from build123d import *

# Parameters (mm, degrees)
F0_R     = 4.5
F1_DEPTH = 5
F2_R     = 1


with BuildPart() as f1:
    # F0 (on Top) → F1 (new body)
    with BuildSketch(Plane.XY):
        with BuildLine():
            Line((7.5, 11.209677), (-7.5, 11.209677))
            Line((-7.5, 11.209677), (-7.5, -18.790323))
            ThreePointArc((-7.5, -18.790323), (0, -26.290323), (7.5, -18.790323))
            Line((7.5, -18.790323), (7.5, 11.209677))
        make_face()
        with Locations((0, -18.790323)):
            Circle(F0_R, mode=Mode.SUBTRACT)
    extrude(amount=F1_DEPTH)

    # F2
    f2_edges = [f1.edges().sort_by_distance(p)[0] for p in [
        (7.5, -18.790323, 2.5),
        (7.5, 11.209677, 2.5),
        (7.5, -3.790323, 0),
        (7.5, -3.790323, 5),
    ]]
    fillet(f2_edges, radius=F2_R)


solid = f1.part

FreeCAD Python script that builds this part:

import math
import FreeCAD as App
import Part
import Sketcher


def edges_at(feature, points):
    """Names of the edges that pass closest to the given points."""
    edges = feature.Shape.Edges
    near = lambda p: min(range(len(edges)), key=lambda i: edges[i].distToShape(Part.Vertex(*p))[0])
    return sorted({f"Edge{near(p) + 1}" for p in points})

doc = App.newDocument("Part")
body = doc.addObject("PartDesign::Body", "Body")

sketch1 = body.newObject("Sketcher::SketchObject", "Sketch")
sketch1.AttachmentSupport = (doc.getObject("XY_Plane"), [""])
sketch1.MapMode = "FlatFace"
sketch1.addGeometry([
    Part.LineSegment(App.Vector(7.5, 11.209677, 0), App.Vector(-7.5, 11.209677, 0)),
    Part.LineSegment(App.Vector(-7.5, 11.209677, 0), App.Vector(-7.5, -18.790323, 0)),
    Part.ArcOfCircle(Part.Circle(App.Vector(0, -18.790323, 0), App.Vector(0, 0, 1), 7.5), math.radians(180), math.radians(360)),
    Part.LineSegment(App.Vector(7.5, -18.790323, 0), App.Vector(7.5, 11.209677, 0)),
    Part.Circle(App.Vector(0, -18.790323, 0), App.Vector(0, 0, 1), 4.5),
], False)
sketch1.addConstraint([
    Sketcher.Constraint("Coincident", 0, 2, 1, 1),
    Sketcher.Constraint("Tangent", 1, 2, 2, 1),
    Sketcher.Constraint("Tangent", 2, 2, 3, 1),
    Sketcher.Constraint("Coincident", 3, 2, 0, 1),
    Sketcher.Constraint("Horizontal", 0),
    Sketcher.Constraint("Vertical", 1),
    Sketcher.Constraint("Vertical", 3),
    Sketcher.Constraint("Coincident", 4, 3, 2, 3),
    Sketcher.Constraint("PointOnObject", 2, 3, -2),
    Sketcher.Constraint("Diameter", 4, 9.0),
    Sketcher.Constraint("Radius", 2, 7.5),
    Sketcher.Constraint("DistanceY", 1, 2, 1, 1, 30.0),
    Sketcher.Constraint("DistanceY", 2, 3, -1, 1, 18.790323),
])
pad1 = body.newObject("PartDesign::Pad", "Pad")
pad1.Profile = sketch1
pad1.Length = 5
doc.recompute()

fillet = body.newObject("PartDesign::Fillet", "Fillet")
fillet.Base = (pad1, edges_at(pad1, [
    (7.5, -18.79, 2.5),
    (7.5, 11.21, 2.5),
    (7.5, -3.79, 0),
    (7.5, -3.79, 5),
]))
fillet.Radius = 1

doc.recompute()
